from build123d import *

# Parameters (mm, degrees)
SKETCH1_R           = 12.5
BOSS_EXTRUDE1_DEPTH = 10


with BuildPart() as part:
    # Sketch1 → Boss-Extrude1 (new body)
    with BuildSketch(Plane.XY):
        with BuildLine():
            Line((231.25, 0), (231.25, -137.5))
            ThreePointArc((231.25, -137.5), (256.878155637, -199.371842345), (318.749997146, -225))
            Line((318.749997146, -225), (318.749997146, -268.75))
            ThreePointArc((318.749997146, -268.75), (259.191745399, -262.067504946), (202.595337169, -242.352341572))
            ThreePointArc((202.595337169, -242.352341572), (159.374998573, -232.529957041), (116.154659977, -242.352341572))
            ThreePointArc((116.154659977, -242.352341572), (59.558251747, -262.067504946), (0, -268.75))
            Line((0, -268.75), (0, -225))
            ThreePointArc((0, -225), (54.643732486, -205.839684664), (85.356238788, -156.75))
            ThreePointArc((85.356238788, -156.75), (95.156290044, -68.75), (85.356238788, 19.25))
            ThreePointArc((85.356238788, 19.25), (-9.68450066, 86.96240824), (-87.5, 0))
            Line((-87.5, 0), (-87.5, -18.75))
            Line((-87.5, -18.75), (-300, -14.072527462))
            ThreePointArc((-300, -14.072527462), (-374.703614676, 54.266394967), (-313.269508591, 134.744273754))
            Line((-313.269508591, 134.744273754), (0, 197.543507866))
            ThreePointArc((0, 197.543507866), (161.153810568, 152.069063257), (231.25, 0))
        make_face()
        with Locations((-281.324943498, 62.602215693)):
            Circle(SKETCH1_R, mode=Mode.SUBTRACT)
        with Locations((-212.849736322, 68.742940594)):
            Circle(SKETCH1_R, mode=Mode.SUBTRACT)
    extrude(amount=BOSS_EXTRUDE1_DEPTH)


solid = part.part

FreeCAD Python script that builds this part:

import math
import FreeCAD as App
import Part
import Sketcher
from FreeCAD import Vector

doc = App.newDocument("Part")
params = doc.addObject("Spreadsheet::Sheet", "Params")
for row, (alias, value) in enumerate([
    ("sketch1_diameter", "25 mm"),
    ("sketch1_radius", "200 mm"),
    ("sketch1_radius2", "75 mm"),
    ("sketch1_radius3", "400 mm"),
    ("sketch1_radius4", "100 mm"),
    ("pad1_length", "10 mm"),
], start=1):
    params.set(f"A{row}", alias)
    params.set(f"B{row}", "=" + value)
    params.setAlias(f"B{row}", alias)

body = doc.addObject("PartDesign::Body", "Body")

# Sketch on XY plane
sketch1 = body.newObject("Sketcher::SketchObject", "Sketch")
sketch1.AttachmentSupport = (doc.getObject("XY_Plane"), [""])
sketch1.MapMode = "FlatFace"
sketch1.addGeometry([
    Part.LineSegment(Vector(231, -138, 0), Vector(231, 0, 0)),  # 0
    Part.ArcOfCircle(Part.Circle(Vector(31, 0, 0), Vector(0, 0, 1), 200), math.radians(0), math.radians(99)),  # 1
    Part.LineSegment(Vector(0, 198, 0), Vector(-313, 135, 0)),  # 2
    Part.ArcOfCircle(Part.Circle(Vector(-300, 61, 0), Vector(0, 0, 1), 75), math.radians(100), math.radians(270)),  # 3
    Part.LineSegment(Vector(-300, -14, 0), Vector(-88, -19, 0)),  # 4
    Part.LineSegment(Vector(-88, -19, 0), Vector(-88, 0, 0)),  # 5
    Part.ArcOfCircle(Part.Circle(Vector(0, 0, 0), Vector(0, 0, 1), 88), math.radians(13), math.radians(180)),  # 6
    Part.ArcOfCircle(Part.Circle(Vector(-305, -69, 0), Vector(0, 0, 1), 400), math.radians(-13), math.radians(13)),  # 7
    Part.ArcOfCircle(Part.Circle(Vector(0, -137, 0), Vector(0, 0, 1), 88), math.radians(-90), math.radians(-13)),  # 8
    Part.LineSegment(Vector(0, -225, 0), Vector(0, -269, 0)),  # 9
    Part.ArcOfCircle(Part.Circle(Vector(0, 0, 0), Vector(0, 0, 1), 269), math.radians(-90), math.radians(-64)),  # 10
    Part.ArcOfCircle(Part.Circle(Vector(159, -333, 0), Vector(0, 0, 1), 100), math.radians(64), math.radians(116)),  # 11
    Part.ArcOfCircle(Part.Circle(Vector(319, 0, 0), Vector(0, 0, 1), 269), math.radians(-116), math.radians(-90)),  # 12
    Part.LineSegment(Vector(319, -269, 0), Vector(319, -225, 0)),  # 13
    Part.ArcOfCircle(Part.Circle(Vector(319, -138, 0), Vector(0, 0, 1), 87), math.radians(180), math.radians(270)),  # 14
    Part.Circle(Vector(-281, 63, 0), Vector(0, 0, 1), 12),  # 15
    Part.Circle(Vector(-213, 69, 0), Vector(0, 0, 1), 12),  # 16
], False)
sketch1.addConstraint([
    Sketcher.Constraint("Tangent", 0, 2, 1, 1),
    Sketcher.Constraint("Coincident", 1, 2, 2, 1),
    Sketcher.Constraint("Coincident", 2, 2, 3, 1),
    Sketcher.Constraint("Coincident", 3, 2, 4, 1),
    Sketcher.Constraint("Coincident", 4, 2, 5, 1),
    Sketcher.Constraint("Tangent", 5, 2, 6, 2),
    Sketcher.Constraint("Tangent", 6, 1, 7, 2),
    Sketcher.Constraint("Tangent", 7, 1, 8, 2),
    Sketcher.Constraint("Coincident", 8, 1, 9, 1),
    Sketcher.Constraint("Coincident", 9, 2, 10, 1),
    Sketcher.Constraint("Tangent", 10, 2, 11, 2),
    Sketcher.Constraint("Tangent", 11, 1, 12, 1),
    Sketcher.Constraint("Coincident", 12, 2, 13, 1),
    Sketcher.Constraint("Coincident", 13, 2, 14, 2),
    Sketcher.Constraint("Tangent", 14, 1, 0, 1),
    Sketcher.Constraint("Vertical", 0),
    Sketcher.Constraint("Vertical", 5),
    Sketcher.Constraint("Vertical", 9),
    Sketcher.Constraint("Vertical", 13),
    Sketcher.Constraint("Coincident", 6, 3, -1, 1),
    Sketcher.Constraint("Coincident", 10, 3, -1, 1),
    Sketcher.Constraint("Equal", 6, 8),
    Sketcher.Constraint("Equal", 10, 12),
    Sketcher.Constraint("Equal", 8, 14),
    Sketcher.Constraint("Equal", 15, 16),
    Sketcher.Constraint("PointOnObject", 1, 3, -1),
    Sketcher.Constraint("PointOnObject", 8, 3, -2),
    Sketcher.Constraint("PointOnObject", 12, 3, -1),
    Sketcher.Constraint("PointOnObject", 1, 2, -2),
    Sketcher.Constraint("PointOnObject", 8, 1, -2),
    Sketcher.Constraint("Horizontal", 8, 3, 14, 3),
    Sketcher.Constraint("Diameter", 15, 25.0),
    Sketcher.Constraint("Radius", 1, 200.0),
    Sketcher.Constraint("Radius", 3, 75.0),
    Sketcher.Constraint("Radius", 7, 400.0),
    Sketcher.Constraint("Radius", 11, 100.0),
    Sketcher.Constraint("Radius", 6, 87.5),
    Sketcher.Constraint("Radius", 10, 268.75),
    Sketcher.Constraint("DistanceY", 0, 1, 0, 2, 137.5),
    Sketcher.Constraint("DistanceX", 3, 3, -1, 1, 300.0),
    Sketcher.Constraint("DistanceX", 3, 2, -1, 1, 300.0),
    Sketcher.Constraint("DistanceY", 9, 2, 4, 2, 250.0),
    Sketcher.Constraint("DistanceX", -1, 1, 1, 3, 31.25),
    Sketcher.Constraint("Distance", 2, 319.502001),
    Sketcher.Constraint("DistanceX", -1, 1, 11, 3, 159.374999),
    Sketcher.Constraint("DistanceX", 11, 3, 12, 2, 159.374999),
    Sketcher.Constraint("DistanceY", 3, 3, 2, 2, 73.816801),
    Sketcher.Constraint("DistanceY", -1, 1, 16, 3, 68.742941),
    Sketcher.Constraint("DistanceY", 15, 3, 2, 2, 72.142058),
    Sketcher.Constraint("DistanceX", 15, 3, -1, 1, 281.324943),
    Sketcher.Constraint("DistanceX", 16, 3, -1, 1, 212.849736),
])
sketch1.setExpression("Constraints[31]", "Params.sketch1_diameter")
sketch1.setExpression("Constraints[32]", "Params.sketch1_radius")
sketch1.setExpression("Constraints[33]", "Params.sketch1_radius2")
sketch1.setExpression("Constraints[34]", "Params.sketch1_radius3")
sketch1.setExpression("Constraints[35]", "Params.sketch1_radius4")
pad1 = body.newObject("PartDesign::Pad", "Pad")
pad1.Profile = sketch1
pad1.setExpression("Length", "Params.pad1_length")

doc.recompute()
